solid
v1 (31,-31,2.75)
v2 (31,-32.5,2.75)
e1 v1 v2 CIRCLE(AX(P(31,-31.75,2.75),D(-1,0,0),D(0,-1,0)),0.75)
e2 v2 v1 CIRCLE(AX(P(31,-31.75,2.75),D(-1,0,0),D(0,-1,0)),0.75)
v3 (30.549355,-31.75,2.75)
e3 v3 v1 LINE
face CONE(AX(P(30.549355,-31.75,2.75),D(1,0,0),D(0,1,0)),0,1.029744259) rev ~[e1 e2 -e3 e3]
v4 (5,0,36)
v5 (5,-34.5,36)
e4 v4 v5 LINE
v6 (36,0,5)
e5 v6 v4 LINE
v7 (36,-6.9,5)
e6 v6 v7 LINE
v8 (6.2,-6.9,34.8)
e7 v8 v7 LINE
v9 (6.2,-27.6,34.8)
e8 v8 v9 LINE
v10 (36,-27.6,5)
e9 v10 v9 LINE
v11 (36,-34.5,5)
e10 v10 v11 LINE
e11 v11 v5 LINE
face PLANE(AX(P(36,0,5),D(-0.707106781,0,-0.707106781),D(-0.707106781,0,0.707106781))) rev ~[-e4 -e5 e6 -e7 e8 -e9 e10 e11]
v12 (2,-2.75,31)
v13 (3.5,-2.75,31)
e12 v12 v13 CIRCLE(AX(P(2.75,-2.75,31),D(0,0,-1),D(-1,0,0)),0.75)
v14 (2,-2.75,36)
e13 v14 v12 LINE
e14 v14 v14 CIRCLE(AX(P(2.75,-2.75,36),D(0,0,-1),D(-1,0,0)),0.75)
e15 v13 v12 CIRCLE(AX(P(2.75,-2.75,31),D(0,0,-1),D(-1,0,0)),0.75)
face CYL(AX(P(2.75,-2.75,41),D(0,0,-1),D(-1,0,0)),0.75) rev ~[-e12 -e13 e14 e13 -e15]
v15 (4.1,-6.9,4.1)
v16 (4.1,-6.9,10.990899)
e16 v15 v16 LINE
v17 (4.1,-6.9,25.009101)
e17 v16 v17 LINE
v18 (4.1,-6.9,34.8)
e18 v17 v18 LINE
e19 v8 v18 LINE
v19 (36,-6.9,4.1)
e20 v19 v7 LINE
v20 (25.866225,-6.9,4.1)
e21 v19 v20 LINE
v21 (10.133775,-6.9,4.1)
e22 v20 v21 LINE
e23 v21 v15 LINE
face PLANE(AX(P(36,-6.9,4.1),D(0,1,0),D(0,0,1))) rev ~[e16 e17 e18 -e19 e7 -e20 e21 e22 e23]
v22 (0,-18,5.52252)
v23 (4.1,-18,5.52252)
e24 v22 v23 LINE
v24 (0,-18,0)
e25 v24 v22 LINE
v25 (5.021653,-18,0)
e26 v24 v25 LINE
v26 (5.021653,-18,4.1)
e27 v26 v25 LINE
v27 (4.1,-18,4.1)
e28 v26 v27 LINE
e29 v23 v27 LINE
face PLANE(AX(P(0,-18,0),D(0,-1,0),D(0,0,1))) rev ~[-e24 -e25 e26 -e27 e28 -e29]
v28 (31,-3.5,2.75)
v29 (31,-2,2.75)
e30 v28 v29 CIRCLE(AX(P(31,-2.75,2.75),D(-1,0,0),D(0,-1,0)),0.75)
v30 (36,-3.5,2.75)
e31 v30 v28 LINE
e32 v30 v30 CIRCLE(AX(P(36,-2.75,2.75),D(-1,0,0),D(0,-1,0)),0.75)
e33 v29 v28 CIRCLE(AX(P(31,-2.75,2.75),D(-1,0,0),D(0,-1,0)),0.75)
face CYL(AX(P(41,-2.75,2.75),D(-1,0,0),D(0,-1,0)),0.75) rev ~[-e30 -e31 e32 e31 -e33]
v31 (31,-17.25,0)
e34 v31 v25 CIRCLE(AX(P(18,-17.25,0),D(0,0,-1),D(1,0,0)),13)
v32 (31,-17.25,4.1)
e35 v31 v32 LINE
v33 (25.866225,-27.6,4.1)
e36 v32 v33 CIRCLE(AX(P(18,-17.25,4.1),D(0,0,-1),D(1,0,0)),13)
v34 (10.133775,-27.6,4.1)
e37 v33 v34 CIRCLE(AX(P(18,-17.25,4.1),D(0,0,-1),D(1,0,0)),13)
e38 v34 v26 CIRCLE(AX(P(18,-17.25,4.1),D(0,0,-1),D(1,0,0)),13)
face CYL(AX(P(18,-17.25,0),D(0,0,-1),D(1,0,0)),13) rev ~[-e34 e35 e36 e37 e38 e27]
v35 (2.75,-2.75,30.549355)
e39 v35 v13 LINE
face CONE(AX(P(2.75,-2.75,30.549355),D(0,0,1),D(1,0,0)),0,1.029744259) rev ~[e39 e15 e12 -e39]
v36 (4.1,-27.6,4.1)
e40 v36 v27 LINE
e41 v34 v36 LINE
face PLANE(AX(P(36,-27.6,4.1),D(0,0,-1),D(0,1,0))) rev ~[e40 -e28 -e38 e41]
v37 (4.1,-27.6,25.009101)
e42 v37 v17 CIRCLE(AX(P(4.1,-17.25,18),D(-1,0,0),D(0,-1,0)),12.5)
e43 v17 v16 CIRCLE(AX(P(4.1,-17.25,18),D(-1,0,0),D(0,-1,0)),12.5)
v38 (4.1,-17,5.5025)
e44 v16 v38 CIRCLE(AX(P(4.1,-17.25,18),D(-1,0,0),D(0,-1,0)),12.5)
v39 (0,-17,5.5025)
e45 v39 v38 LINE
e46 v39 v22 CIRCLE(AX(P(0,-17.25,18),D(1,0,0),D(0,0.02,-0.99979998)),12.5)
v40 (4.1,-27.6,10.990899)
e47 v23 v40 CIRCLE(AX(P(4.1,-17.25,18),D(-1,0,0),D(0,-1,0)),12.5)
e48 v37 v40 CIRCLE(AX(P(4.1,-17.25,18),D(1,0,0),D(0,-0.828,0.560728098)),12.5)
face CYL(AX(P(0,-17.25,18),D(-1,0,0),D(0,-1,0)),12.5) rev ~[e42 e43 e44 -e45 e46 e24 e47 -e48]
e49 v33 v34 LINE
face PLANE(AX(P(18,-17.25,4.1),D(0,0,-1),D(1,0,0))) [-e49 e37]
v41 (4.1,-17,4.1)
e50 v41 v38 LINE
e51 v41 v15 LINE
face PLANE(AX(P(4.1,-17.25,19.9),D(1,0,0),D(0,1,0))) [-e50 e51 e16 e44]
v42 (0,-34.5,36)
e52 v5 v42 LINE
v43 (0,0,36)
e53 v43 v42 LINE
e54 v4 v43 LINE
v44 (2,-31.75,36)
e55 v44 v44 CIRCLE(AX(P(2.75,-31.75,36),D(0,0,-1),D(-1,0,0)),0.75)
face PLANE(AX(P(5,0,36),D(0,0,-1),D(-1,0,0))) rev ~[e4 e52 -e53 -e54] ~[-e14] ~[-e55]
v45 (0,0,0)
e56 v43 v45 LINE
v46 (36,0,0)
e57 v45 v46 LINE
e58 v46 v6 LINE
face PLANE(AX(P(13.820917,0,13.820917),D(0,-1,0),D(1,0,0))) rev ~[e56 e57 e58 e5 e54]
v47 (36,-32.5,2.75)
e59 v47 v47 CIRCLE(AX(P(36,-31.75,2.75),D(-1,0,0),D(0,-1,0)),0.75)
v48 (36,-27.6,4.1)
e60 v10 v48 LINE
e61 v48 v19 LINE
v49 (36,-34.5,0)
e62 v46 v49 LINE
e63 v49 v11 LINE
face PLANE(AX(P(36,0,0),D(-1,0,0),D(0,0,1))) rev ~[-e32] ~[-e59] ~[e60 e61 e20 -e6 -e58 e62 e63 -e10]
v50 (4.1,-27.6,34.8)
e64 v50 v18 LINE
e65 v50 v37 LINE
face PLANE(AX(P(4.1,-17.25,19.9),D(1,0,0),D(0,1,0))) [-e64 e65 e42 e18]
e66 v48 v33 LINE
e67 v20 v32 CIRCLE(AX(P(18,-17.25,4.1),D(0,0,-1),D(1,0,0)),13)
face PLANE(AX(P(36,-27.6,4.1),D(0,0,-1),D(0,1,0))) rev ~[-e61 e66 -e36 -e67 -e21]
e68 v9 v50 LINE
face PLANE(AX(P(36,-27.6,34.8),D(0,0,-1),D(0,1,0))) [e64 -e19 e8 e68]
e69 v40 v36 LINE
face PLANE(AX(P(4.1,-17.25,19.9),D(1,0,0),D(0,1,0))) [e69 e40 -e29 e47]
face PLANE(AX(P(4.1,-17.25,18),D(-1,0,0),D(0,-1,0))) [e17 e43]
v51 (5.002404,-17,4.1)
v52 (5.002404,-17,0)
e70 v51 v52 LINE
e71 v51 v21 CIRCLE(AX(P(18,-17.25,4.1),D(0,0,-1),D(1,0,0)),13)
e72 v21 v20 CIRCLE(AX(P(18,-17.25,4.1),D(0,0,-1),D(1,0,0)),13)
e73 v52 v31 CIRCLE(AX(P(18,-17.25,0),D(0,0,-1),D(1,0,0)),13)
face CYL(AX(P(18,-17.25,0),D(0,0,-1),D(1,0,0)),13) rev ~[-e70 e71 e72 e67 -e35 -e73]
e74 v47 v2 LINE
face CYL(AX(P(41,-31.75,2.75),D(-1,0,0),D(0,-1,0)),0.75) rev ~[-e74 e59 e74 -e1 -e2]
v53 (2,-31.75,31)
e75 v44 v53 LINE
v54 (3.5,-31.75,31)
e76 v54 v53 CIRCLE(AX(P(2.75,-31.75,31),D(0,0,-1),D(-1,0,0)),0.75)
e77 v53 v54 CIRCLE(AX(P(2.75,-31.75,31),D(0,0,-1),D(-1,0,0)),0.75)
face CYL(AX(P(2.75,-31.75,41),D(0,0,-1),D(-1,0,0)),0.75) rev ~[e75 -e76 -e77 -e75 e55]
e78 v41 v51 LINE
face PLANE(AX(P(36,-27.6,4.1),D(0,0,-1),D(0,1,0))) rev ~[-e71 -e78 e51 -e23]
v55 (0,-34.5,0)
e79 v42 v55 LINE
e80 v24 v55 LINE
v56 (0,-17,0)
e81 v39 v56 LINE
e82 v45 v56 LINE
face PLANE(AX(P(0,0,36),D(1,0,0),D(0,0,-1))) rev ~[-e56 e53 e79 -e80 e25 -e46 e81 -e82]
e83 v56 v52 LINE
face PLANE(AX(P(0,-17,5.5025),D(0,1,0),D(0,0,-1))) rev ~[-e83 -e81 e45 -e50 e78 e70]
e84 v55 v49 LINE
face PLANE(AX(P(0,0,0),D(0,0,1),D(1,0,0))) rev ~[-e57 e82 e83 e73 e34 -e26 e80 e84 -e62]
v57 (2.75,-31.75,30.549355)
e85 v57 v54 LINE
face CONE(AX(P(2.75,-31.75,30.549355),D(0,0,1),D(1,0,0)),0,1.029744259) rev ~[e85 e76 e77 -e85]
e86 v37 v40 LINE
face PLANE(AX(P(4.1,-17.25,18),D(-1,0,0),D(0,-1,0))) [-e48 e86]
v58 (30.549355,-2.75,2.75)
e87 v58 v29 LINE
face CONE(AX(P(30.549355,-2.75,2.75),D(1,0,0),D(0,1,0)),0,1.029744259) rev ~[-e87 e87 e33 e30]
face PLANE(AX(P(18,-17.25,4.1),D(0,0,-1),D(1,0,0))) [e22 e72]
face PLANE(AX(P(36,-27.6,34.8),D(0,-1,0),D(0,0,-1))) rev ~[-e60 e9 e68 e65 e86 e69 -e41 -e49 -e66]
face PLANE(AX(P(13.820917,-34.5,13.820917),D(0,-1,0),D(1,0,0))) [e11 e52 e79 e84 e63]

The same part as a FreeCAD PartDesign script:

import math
import FreeCAD as App
import Part
import Sketcher

V = App.Vector
Q = App.Units.Quantity


def add_polygon(sketch, points):
    """Adds a closed chain of lines whose ends are joined by coincident constraints."""
    first, n = sketch.GeometryCount, len(points)
    for a, b in zip(points, points[1:] + points[:1]):
        sketch.addGeometry(Part.LineSegment(App.Vector(*a, 0), App.Vector(*b, 0)), False)
    for i in range(n):
        sketch.addConstraint(Sketcher.Constraint("Coincident", first + i, 2, first + (i + 1) % n, 1))

doc = App.newDocument("Part")
body = doc.addObject("PartDesign::Body", "Body")

sketch1 = doc.addObject("Sketcher::SketchObject", "Sketch")
body.addObject(sketch1)
sketch1.AttachmentSupport = (doc.XZ_Plane, [""])
sketch1.MapMode = "FlatFace"
add_polygon(sketch1, [(0, 36), (0, 0), (36, 0), (36, 5), (5, 36)])
sketch1.addConstraint([
    Sketcher.Constraint("Vertical", 0),
    Sketcher.Constraint("Horizontal", 1),
    Sketcher.Constraint("Vertical", 2),
    Sketcher.Constraint("Horizontal", 4),
    Sketcher.Constraint("Coincident", 0, 2, -1, 1),
    Sketcher.Constraint("Equal", 1, 0),
    Sketcher.Constraint("Equal", 4, 2),
    Sketcher.Constraint("DistanceX", 1, 1, 1, 2, Q("36 mm")),
    Sketcher.Constraint("DistanceX", 4, 2, 4, 1, Q("5 mm")),
])
pad1 = doc.addObject("PartDesign::Pad", "Pad")
body.addObject(pad1)
pad1.Profile = sketch1
pad1.Length = 34.5

sketch2 = doc.addObject("Sketcher::SketchObject", "Sketch001")
body.addObject(sketch2)
sketch2.AttachmentSupport = (doc.YZ_Plane, [""])
sketch2.MapMode = "FlatFace"
sketch2.addGeometry(Part.Circle(V(-17, 18, 0), V(0, 0, 1), 12), False)
sketch2.addConstraint([
    Sketcher.Constraint("Diameter", 0, Q("25 mm")),
    Sketcher.Constraint("DistanceY", -1, 1, 0, 3, Q("18 mm")),
    Sketcher.Constraint("DistanceX", 0, 3, -1, 1, Q("17.25 mm")),
])
pocket1 = doc.addObject("PartDesign::Pocket", "Pocket")
body.addObject(pocket1)
pocket1.Profile = sketch2
pocket1.Length = 4.1
pocket1.Reversed = True

sketch3 = doc.addObject("Sketcher::SketchObject", "Sketch002")
body.addObject(sketch3)
sketch3.AttachmentSupport = (doc.XY_Plane, [""])
sketch3.MapMode = "FlatFace"
sketch3.addGeometry(Part.Circle(V(18, -17, 0), V(0, 0, 1), 13), False)
sketch3.addConstraint([
    Sketcher.Constraint("Diameter", 0, Q("26 mm")),
    Sketcher.Constraint("DistanceX", -1, 1, 0, 3, Q("18 mm")),
    Sketcher.Constraint("DistanceY", 0, 3, -1, 1, Q("17.25 mm")),
])
pocket2 = doc.addObject("PartDesign::Pocket", "Pocket001")
body.addObject(pocket2)
pocket2.Profile = sketch3
pocket2.Length = 4.1
pocket2.Reversed = True

sketch4 = doc.addObject("Sketcher::SketchObject", "Sketch003")
body.addObject(sketch4)
sketch4.AttachmentSupport = (doc.YZ_Plane, [""])
sketch4.MapMode = "FlatFace"
sketch4.AttachmentOffset = App.Placement(V(0, 0, 36), App.Rotation())
add_polygon(sketch4, [(-28, 35), (-28, 4), (-7, 4), (-7, 35)])
sketch4.addConstraint([
    Sketcher.Constraint("Vertical", 0),
    Sketcher.Constraint("Horizontal", 1),
    Sketcher.Constraint("Vertical", 2),
    Sketcher.Constraint("Horizontal", 3),
    Sketcher.Constraint("DistanceX", 1, 1, 1, 2, Q("20.7 mm")),
    Sketcher.Constraint("DistanceY", 0, 2, 0, 1, Q("30.7 mm")),
    Sketcher.Constraint("DistanceX", 0, 2, -1, 1, Q("27.6 mm")),
    Sketcher.Constraint("DistanceY", -1, 1, 0, 2, Q("4.1 mm")),
])
pocket3 = doc.addObject("PartDesign::Pocket", "Pocket002")
body.addObject(pocket3)
pocket3.Profile = sketch4
pocket3.Length = 31.9

sketch5 = doc.addObject("Sketcher::SketchObject", "Sketch004")
body.addObject(sketch5)
sketch5.AttachmentSupport = (doc.XY_Plane, [""])
sketch5.MapMode = "FlatFace"
sketch5.AttachmentOffset = App.Placement(V(0, 0, 36), App.Rotation())
sketch5.addGeometry([
    Part.Circle(V(2.8, -31.8, 0), V(0, 0, 1), 0.8),
    Part.Circle(V(2.8, -2.8, 0), V(0, 0, 1), 0.8),
], False)
sketch5.addConstraint([
    Sketcher.Constraint("Equal", 0, 1),
    Sketcher.Constraint("Vertical", 0, 3, 1, 3),
    Sketcher.Constraint("Diameter", 0, Q("1.5 mm")),
    Sketcher.Constraint("DistanceY", 0, 3, 1, 3, Q("29 mm")),
    Sketcher.Constraint("DistanceX", -1, 1, 0, 3, Q("2.75 mm")),
    Sketcher.Constraint("DistanceY", 0, 3, -1, 1, Q("31.75 mm")),
])
doc.recompute()
hole = doc.addObject("PartDesign::Hole", "Hole")
body.addObject(hole)
hole.Profile = sketch5
hole.ThreadType = "None"
hole.Diameter = 1.5
hole.DepthType = "Dimension"
hole.Depth = 5
hole.DrillPoint = "Angled"
hole.DrillPointAngle = 118

sketch6 = doc.addObject("Sketcher::SketchObject", "Sketch005")
body.addObject(sketch6)
sketch6.AttachmentSupport = (doc.YZ_Plane, [""])
sketch6.MapMode = "FlatFace"
sketch6.AttachmentOffset = App.Placement(V(0, 0, 36), App.Rotation())
sketch6.addGeometry([
    Part.Circle(V(-31.8, 2.8, 0), V(0, 0, 1), 0.8),
    Part.Circle(V(-2.8, 2.8, 0), V(0, 0, 1), 0.8),
], False)
sketch6.addConstraint([
    Sketcher.Constraint("Equal", 0, 1),
    Sketcher.Constraint("Horizontal", 0, 3, 1, 3),
    Sketcher.Constraint("Diameter", 0, Q("1.5 mm")),
    Sketcher.Constraint("DistanceX", 0, 3, 1, 3, Q("29 mm")),
    Sketcher.Constraint("DistanceX", 0, 3, -1, 1, Q("31.75 mm")),
    Sketcher.Constraint("DistanceY", -1, 1, 0, 3, Q("2.75 mm")),
])
doc.recompute()
hole2 = doc.addObject("PartDesign::Hole", "Hole001")
body.addObject(hole2)
hole2.Profile = sketch6
hole2.ThreadType = "None"
hole2.Diameter = 1.5
hole2.DepthType = "Dimension"
hole2.Depth = 5
hole2.DrillPoint = "Angled"
hole2.DrillPointAngle = 118

sketch7 = doc.addObject("Sketcher::SketchObject", "Sketch006")
body.addObject(sketch7)
sketch7.AttachmentSupport = (doc.YZ_Plane, [""])
sketch7.MapMode = "FlatFace"
sketch7.addGeometry([
    Part.ArcOfCircle(Part.Circle(V(-17.3, 18, 0), V(0, 0, 1), 12.5), math.radians(-93.44), math.radians(-88.85)),
    Part.LineSegment(V(-17, 5.5, 0), V(-17, 0, 0)),
    Part.LineSegment(V(-17, 0, 0), V(-18, 0, 0)),
    Part.LineSegment(V(-18, 0, 0), V(-18, 5.5, 0)),
], False)
sketch7.addConstraint([
    Sketcher.Constraint("Coincident", 0, 2, 1, 1),
    Sketcher.Constraint("Coincident", 1, 2, 2, 1),
    Sketcher.Constraint("Coincident", 2, 2, 3, 1),
    Sketcher.Constraint("Coincident", 3, 2, 0, 1),
    Sketcher.Constraint("Vertical", 1),
    Sketcher.Constraint("Horizontal", 2),
    Sketcher.Constraint("Vertical", 3),
    Sketcher.Constraint("PointOnObject", 1, 2, -1),
    Sketcher.Constraint("Radius", 0, Q("12.5 mm")),
    Sketcher.Constraint("DistanceX", 2, 2, 2, 1, Q("1 mm")),
    Sketcher.Constraint("DistanceY", -1, 1, 0, 3, Q("18 mm")),
    Sketcher.Constraint("DistanceX", 0, 2, -1, 1, Q("17 mm")),
    Sketcher.Constraint("DistanceX", 0, 3, -1, 1, Q("17.25 mm")),
])
pocket4 = doc.addObject("PartDesign::Pocket", "Pocket003")
body.addObject(pocket4)
pocket4.Profile = sketch7
pocket4.Length = 25
pocket4.Reversed = True

doc.recompute()
